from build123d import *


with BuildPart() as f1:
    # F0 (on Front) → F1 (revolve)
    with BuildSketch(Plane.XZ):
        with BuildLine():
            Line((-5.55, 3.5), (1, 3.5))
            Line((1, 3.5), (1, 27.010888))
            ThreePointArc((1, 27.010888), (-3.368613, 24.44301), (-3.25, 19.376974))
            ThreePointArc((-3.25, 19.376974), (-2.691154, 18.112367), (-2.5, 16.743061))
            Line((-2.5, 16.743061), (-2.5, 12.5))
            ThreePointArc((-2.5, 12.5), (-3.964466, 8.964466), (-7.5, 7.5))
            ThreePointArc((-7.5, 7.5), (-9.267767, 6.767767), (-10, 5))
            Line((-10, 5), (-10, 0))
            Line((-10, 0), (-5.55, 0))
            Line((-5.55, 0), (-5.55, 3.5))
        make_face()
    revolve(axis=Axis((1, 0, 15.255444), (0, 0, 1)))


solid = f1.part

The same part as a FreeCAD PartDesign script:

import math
import FreeCAD as App
import Part
import Sketcher
from FreeCAD import Vector
Q = App.Units.Quantity

doc = App.newDocument("Part")
body = doc.addObject("PartDesign::Body", "Body")

# Sketch on XZ plane
sketch1 = body.newObject("Sketcher::SketchObject", "Sketch")
sketch1.AttachmentSupport = (doc.getObject("XZ_Plane"), [""])
sketch1.MapMode = "FlatFace"
sketch1.addGeometry([
    Part.LineSegment(Vector(-5.55, 3.5, 0), Vector(1, 3.5, 0)),  # 0
    Part.LineSegment(Vector(1, 3.5, 0), Vector(1, 27.010888, 0)),  # 1
    Part.ArcOfCircle(Part.Circle(Vector(1.000001, 22.010887, 0), Vector(0, 0, 1), 5.000001), math.radians(90.000008), math.radians(211.788326)),  # 2
    Part.ArcOfCircle(Part.Circle(Vector(-7.5, 16.743061, 0), Vector(0, 0, 1), 5), math.radians(0.000005), math.radians(31.78833)),  # 3
    Part.LineSegment(Vector(-2.5, 16.743061, 0), Vector(-2.5, 12.5, 0)),  # 4
    Part.ArcOfCircle(Part.Circle(Vector(-7.5, 12.5, 0), Vector(0, 0, 1), 5), math.radians(-90.000004), math.radians(0.000004)),  # 5
    Part.ArcOfCircle(Part.Circle(Vector(-7.5, 5, 0), Vector(0, 0, 1), 2.5), math.radians(89.999996), math.radians(180.000004)),  # 6
    Part.LineSegment(Vector(-10, 5, 0), Vector(-10, 0, 0)),  # 7
    Part.LineSegment(Vector(-10, 0, 0), Vector(-5.55, 0, 0)),  # 8
    Part.LineSegment(Vector(-5.55, 0, 0), Vector(-5.55, 3.5, 0)),  # 9
], False)
sketch1.addGeometry(Part.LineSegment(Vector(1, 0, 0), Vector(1, 27.010888, 0)), True)  # axis
sketch1.addConstraint([
    Sketcher.Constraint("Coincident", 0, 2, 1, 1),
    Sketcher.Constraint("Coincident", 1, 2, 2, 1),
    Sketcher.Constraint("Tangent", 2, 2, 3, 2),
    Sketcher.Constraint("Tangent", 3, 1, 4, 1),
    Sketcher.Constraint("Tangent", 4, 2, 5, 2),
    Sketcher.Constraint("Tangent", 5, 1, 6, 1),
    Sketcher.Constraint("Tangent", 6, 2, 7, 1),
    Sketcher.Constraint("Coincident", 7, 2, 8, 1),
    Sketcher.Constraint("Coincident", 8, 2, 9, 1),
    Sketcher.Constraint("Coincident", 9, 2, 0, 1),
    Sketcher.Constraint("Horizontal", 0),
    Sketcher.Constraint("Vertical", 1),
    Sketcher.Constraint("Vertical", 4),
    Sketcher.Constraint("Vertical", 7),
    Sketcher.Constraint("Horizontal", 8),
    Sketcher.Constraint("Vertical", 9),
    Sketcher.Constraint("Vertical", 10),
    Sketcher.Constraint("Coincident", 10, 2, 1, 2),
    Sketcher.Constraint("Equal", 2, 3),
    Sketcher.Constraint("Equal", 3, 5),
    Sketcher.Constraint("PointOnObject", 7, 2, -1),
    Sketcher.Constraint("PointOnObject", 10, 1, -1),
    Sketcher.Constraint("Vertical", 5, 3, 6, 3),
    Sketcher.Constraint("Vertical", 2, 3, 0, 2),
    Sketcher.Constraint("Radius", 2, Q("5.000001 mm")),
    Sketcher.Constraint("Radius", 6, Q("2.5 mm")),
    Sketcher.Constraint("DistanceY", 7, 2, 7, 1, Q("5 mm")),
    Sketcher.Constraint("DistanceY", 9, 1, 9, 2, Q("3.5 mm")),
    Sketcher.Constraint("DistanceX", -1, 1, 2, 3, Q("1.000001 mm")),
    Sketcher.Constraint("DistanceX", 6, 2, -1, 1, Q("10 mm")),
    Sketcher.Constraint("DistanceX", 0, 1, 0, 2, Q("6.55 mm")),
    Sketcher.Constraint("DistanceY", 1, 1, 1, 2, Q("23.510888 mm")),
])
revolution = body.newObject("PartDesign::Revolution", "Revolution")
revolution.Profile = sketch1
revolution.ReferenceAxis = (sketch1, ["Axis0"])
revolution.Angle = 360

doc.recompute()
